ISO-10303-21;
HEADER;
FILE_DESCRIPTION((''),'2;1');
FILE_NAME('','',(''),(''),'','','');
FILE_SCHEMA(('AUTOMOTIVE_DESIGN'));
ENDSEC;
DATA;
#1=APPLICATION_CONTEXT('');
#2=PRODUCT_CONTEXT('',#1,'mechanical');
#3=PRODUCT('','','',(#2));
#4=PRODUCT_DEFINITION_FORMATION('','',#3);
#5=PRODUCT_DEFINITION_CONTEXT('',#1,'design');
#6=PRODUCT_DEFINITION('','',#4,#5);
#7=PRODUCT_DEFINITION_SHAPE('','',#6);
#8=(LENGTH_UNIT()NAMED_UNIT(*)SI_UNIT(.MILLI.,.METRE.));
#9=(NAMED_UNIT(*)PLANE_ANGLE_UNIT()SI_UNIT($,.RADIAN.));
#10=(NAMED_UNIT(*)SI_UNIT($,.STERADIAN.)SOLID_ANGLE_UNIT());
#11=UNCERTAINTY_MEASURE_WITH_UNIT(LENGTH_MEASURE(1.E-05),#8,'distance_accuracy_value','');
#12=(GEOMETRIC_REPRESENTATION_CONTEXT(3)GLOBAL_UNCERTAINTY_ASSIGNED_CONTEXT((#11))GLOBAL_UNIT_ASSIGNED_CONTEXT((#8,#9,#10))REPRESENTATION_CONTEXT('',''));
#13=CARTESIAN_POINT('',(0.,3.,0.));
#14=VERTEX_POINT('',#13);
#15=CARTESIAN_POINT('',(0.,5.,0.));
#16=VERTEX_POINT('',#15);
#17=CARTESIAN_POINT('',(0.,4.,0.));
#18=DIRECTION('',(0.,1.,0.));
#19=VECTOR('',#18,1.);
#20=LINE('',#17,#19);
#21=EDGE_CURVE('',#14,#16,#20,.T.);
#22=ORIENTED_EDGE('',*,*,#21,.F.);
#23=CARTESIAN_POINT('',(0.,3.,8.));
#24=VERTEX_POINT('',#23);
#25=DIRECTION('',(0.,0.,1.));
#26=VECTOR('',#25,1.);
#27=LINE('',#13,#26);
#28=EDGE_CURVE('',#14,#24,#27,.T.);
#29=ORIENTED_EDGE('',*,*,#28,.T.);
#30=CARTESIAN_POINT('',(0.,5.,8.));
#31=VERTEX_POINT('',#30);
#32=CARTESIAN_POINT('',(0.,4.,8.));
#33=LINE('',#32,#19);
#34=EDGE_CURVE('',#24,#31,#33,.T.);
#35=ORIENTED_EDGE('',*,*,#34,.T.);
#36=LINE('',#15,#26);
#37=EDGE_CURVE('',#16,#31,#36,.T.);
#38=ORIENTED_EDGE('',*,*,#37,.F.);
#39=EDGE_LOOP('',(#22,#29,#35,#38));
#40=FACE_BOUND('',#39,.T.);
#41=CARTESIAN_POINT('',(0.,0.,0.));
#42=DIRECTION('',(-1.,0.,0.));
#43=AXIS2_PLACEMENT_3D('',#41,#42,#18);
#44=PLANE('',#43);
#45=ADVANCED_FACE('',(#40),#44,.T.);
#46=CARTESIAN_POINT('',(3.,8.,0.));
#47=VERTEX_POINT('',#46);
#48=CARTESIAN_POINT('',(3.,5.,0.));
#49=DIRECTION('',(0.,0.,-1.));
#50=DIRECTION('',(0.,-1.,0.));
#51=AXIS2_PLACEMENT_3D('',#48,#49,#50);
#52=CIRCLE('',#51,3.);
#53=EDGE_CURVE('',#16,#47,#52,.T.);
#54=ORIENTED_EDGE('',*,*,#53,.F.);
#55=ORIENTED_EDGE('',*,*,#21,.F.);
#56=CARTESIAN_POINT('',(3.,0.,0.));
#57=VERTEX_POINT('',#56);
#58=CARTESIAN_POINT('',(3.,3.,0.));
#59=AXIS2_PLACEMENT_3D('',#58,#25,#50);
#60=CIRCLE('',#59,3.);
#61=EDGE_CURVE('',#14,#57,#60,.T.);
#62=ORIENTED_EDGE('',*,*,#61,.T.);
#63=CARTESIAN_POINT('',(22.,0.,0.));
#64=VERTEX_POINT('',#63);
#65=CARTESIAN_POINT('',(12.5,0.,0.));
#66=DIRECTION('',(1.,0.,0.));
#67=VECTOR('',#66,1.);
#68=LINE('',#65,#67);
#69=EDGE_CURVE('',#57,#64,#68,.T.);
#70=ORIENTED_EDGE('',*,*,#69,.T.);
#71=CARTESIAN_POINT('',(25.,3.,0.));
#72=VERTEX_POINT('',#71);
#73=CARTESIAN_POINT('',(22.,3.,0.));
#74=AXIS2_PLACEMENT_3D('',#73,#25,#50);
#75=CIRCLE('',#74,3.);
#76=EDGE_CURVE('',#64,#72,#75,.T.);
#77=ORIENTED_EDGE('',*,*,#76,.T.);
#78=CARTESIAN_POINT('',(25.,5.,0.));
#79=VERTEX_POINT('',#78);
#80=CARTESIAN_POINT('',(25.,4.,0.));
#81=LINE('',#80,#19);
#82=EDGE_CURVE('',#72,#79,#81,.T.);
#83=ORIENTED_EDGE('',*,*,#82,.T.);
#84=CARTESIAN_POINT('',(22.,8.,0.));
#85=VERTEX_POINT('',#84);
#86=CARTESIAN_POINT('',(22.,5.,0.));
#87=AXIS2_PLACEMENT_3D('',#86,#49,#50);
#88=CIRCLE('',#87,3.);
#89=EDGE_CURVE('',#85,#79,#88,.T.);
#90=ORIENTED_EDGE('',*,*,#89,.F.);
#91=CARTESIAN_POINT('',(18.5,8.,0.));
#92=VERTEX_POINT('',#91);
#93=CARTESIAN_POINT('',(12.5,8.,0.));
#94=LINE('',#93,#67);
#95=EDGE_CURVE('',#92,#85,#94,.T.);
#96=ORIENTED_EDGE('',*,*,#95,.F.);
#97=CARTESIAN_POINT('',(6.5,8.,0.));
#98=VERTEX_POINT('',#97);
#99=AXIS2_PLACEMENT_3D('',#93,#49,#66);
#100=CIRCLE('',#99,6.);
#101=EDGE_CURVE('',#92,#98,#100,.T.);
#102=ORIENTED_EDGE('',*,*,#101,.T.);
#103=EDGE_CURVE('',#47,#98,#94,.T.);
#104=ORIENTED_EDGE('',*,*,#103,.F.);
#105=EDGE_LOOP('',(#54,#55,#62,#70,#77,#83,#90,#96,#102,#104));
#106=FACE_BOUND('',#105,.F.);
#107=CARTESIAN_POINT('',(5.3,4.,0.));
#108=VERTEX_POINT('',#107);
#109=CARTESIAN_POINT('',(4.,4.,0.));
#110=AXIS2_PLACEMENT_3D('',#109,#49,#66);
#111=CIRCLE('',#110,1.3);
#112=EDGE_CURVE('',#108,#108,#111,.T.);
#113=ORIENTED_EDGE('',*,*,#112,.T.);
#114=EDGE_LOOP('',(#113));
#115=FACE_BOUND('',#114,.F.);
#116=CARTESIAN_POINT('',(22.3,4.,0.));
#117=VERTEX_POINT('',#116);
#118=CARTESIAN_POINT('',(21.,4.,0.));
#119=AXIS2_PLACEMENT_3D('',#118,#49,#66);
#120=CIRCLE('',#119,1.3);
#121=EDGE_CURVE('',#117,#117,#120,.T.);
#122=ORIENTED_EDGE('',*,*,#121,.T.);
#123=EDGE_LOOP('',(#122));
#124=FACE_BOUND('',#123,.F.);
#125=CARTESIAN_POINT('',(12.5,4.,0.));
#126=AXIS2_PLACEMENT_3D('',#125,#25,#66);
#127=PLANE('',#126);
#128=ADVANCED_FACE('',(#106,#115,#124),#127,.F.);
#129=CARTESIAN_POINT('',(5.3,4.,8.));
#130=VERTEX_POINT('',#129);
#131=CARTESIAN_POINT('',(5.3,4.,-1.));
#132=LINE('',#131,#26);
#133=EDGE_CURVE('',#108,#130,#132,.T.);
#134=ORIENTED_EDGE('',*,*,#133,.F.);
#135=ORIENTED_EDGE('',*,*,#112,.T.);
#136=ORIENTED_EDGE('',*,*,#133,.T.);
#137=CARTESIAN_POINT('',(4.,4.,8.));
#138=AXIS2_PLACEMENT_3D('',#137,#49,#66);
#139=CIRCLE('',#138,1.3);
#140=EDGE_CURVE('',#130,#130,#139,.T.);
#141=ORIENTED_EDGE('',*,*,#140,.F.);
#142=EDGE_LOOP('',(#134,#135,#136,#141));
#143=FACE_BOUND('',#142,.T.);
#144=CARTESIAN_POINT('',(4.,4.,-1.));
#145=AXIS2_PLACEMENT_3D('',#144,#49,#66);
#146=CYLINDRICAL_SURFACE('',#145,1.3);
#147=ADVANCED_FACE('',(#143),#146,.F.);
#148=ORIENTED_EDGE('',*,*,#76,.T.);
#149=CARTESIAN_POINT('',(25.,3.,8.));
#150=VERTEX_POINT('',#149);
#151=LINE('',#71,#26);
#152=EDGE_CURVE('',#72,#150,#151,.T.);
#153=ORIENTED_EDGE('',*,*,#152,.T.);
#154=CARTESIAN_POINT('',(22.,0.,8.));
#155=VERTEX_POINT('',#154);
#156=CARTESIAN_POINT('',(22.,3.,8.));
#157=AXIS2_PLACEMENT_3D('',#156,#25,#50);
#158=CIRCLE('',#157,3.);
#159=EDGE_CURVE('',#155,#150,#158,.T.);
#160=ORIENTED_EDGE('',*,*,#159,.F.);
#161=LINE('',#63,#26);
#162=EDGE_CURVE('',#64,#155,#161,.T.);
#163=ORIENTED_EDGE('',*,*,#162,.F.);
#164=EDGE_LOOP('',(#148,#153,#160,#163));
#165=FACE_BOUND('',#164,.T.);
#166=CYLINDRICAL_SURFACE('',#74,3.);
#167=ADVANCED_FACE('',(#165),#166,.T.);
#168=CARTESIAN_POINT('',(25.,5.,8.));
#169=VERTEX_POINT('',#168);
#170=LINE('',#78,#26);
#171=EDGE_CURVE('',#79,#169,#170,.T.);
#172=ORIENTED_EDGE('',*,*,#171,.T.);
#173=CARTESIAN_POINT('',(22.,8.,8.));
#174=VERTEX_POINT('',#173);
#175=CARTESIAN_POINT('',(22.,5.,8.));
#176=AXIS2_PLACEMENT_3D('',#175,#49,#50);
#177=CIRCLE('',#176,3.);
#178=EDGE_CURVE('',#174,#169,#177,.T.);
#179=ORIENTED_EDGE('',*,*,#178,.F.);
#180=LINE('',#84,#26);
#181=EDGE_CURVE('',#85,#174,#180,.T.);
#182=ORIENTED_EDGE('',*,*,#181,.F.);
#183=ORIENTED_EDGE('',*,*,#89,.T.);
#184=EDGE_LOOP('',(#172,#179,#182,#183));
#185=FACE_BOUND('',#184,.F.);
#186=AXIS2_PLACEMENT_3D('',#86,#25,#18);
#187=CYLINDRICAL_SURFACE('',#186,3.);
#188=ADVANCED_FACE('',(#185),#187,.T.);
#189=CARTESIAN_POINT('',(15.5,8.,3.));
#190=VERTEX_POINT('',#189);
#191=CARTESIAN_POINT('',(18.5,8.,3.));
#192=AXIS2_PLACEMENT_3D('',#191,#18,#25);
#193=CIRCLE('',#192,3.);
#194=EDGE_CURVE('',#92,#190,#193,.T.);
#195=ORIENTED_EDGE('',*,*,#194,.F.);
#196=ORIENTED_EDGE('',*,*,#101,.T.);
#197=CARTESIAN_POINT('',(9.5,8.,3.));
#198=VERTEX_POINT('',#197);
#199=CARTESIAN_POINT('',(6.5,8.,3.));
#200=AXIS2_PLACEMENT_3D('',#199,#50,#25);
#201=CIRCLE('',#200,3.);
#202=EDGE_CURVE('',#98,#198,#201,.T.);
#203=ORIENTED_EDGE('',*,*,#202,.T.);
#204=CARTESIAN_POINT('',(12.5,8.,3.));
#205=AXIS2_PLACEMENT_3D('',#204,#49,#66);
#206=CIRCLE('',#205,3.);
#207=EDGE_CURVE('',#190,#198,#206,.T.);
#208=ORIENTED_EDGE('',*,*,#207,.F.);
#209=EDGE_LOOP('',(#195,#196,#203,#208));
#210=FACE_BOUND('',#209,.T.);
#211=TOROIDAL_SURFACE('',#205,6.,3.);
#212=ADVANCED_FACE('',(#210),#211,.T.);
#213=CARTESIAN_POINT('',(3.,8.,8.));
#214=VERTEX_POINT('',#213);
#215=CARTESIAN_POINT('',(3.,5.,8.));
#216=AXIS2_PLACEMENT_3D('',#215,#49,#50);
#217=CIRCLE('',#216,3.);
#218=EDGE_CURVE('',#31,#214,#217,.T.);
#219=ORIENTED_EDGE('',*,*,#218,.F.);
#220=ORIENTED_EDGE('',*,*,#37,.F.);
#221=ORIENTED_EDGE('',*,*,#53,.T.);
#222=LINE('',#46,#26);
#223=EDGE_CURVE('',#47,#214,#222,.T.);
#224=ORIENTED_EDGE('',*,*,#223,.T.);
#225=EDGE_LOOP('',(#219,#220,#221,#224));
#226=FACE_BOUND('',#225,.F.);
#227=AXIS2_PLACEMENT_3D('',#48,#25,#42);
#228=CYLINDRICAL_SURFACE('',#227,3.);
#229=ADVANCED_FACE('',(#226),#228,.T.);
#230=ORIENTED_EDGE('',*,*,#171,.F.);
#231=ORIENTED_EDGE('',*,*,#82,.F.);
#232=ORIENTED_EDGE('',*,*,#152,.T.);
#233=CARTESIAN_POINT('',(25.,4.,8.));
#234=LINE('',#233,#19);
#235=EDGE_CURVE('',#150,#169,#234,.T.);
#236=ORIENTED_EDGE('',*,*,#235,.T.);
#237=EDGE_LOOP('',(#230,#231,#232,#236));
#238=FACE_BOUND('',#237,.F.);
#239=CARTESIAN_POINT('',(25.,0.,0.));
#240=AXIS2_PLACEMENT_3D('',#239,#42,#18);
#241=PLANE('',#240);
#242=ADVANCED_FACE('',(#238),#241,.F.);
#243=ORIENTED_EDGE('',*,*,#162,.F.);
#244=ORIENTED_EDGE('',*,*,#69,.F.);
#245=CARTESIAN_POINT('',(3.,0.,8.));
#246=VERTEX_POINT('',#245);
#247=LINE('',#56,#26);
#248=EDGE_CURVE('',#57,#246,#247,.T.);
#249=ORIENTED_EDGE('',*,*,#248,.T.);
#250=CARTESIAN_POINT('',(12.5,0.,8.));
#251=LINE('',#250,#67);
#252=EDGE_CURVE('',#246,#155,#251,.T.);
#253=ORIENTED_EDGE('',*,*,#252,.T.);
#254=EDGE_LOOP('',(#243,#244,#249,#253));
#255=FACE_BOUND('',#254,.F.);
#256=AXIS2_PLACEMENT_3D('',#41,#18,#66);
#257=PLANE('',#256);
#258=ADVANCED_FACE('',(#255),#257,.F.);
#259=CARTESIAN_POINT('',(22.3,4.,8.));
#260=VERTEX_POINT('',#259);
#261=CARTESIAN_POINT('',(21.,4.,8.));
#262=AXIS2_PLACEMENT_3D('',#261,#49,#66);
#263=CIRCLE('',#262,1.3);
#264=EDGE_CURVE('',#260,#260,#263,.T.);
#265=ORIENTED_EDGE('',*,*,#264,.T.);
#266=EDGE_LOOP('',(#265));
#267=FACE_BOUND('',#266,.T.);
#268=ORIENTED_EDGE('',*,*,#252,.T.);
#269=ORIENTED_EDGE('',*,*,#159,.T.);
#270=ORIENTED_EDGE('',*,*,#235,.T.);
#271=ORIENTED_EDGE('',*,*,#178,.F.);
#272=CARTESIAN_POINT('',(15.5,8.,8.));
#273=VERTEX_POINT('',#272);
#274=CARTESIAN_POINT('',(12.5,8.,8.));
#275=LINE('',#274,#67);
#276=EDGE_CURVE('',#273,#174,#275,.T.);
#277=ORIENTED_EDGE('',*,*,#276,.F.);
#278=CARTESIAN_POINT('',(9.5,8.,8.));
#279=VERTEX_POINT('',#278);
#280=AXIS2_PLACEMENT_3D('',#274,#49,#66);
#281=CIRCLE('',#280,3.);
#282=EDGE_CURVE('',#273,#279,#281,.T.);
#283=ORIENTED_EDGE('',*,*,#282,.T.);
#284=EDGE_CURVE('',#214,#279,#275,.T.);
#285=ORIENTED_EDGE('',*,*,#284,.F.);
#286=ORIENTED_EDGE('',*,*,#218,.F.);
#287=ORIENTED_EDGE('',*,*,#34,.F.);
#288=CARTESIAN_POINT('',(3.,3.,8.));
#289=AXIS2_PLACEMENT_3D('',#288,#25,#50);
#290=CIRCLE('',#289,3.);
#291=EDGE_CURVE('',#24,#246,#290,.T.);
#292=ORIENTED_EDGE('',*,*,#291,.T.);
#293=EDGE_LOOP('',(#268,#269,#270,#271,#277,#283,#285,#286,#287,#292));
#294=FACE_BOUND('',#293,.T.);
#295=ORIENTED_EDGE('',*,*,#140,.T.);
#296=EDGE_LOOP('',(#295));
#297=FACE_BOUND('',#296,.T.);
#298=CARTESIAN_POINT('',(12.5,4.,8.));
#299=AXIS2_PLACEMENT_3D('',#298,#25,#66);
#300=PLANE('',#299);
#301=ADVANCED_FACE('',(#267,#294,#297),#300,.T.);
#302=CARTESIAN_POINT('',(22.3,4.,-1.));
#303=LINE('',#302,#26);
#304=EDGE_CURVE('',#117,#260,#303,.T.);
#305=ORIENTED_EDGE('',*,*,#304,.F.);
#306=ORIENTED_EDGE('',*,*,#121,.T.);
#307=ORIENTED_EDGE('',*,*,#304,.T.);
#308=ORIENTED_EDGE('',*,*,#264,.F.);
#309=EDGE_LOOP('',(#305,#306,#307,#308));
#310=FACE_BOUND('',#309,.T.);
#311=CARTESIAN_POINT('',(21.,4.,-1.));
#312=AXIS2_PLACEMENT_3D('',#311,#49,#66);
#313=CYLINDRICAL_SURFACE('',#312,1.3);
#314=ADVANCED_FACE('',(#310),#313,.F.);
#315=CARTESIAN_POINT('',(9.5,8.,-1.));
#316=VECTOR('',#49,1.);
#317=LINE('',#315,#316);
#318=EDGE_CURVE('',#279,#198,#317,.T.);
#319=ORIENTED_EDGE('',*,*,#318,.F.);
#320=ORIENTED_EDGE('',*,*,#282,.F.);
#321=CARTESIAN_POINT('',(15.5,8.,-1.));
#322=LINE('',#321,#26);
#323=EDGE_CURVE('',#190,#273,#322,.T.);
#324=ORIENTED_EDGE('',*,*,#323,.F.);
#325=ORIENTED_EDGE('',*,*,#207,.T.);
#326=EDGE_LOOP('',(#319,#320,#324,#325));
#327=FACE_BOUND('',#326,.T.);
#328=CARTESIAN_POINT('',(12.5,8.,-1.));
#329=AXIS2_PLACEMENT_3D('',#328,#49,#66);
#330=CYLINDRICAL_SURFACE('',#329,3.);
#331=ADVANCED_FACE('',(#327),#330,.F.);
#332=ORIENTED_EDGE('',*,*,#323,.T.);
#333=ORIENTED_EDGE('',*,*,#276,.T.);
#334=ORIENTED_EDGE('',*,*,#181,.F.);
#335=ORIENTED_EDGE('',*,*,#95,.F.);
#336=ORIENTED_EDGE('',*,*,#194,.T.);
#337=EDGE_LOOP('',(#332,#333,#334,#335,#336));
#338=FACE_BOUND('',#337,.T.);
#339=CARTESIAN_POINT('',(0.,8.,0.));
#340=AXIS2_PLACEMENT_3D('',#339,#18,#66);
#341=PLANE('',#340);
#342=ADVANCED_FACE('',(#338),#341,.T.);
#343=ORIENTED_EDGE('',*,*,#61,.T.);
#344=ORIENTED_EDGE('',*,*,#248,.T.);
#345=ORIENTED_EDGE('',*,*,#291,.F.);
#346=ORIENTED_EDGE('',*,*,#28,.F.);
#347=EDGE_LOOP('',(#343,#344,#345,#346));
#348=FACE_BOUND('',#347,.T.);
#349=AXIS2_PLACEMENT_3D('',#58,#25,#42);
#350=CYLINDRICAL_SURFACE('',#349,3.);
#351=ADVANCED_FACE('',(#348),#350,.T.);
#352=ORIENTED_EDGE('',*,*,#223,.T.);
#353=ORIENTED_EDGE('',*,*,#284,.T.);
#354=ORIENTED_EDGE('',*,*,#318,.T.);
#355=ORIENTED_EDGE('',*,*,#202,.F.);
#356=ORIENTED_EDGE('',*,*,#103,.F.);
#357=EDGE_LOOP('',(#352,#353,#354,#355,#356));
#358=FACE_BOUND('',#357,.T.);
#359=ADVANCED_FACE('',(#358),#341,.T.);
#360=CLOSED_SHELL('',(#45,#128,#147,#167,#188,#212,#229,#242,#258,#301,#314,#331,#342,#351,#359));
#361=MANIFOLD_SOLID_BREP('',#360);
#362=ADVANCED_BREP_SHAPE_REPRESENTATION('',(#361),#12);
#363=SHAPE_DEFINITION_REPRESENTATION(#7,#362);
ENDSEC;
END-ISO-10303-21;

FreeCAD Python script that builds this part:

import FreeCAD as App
import Part
import Sketcher

V = App.Vector


def edges_at(feature, points):
    """Names of the edges that pass closest to the given points."""
    edges = feature.Shape.Edges
    near = lambda p: min(range(len(edges)), key=lambda i: edges[i].distToShape(Part.Vertex(*p))[0])
    return sorted({f"Edge{near(p) + 1}" for p in points})

doc = App.newDocument("Part")
body = doc.addObject("PartDesign::Body", "Body")

# Sketch on XY plane
sketch1 = doc.addObject("Sketcher::SketchObject", "Sketch")
body.addObject(sketch1)
sketch1.AttachmentSupport = (doc.XY_Plane, [""])
sketch1.MapMode = "FlatFace"
sketch1.AttachmentOffset = App.Placement(V(0, 0, -1), App.Rotation())
sketch1.addGeometry(Part.Circle(V(12.5, 8, 0), V(0, 0, 1), 3), False)
sketch1.addConstraint([
    Sketcher.Constraint("Diameter", 0, 6.0),
    Sketcher.Constraint("DistanceY", -1, 1, 0, 3, 8.0),
    Sketcher.Constraint("DistanceX", -1, 1, 0, 3, 12.5),
])
pad1 = doc.addObject("PartDesign::Pad", "Pad")
body.addObject(pad1)
pad1.Profile = sketch1
pad1.Length = 10
body2 = doc.addObject("PartDesign::Body", "Body001")

# Sketch on XY plane
sketch2 = doc.addObject("Sketcher::SketchObject", "Sketch001")
body2.addObject(sketch2)
sketch2.AttachmentSupport = (doc.getObject("XY_Plane001"), [""])
sketch2.MapMode = "FlatFace"
sketch2.AttachmentOffset = App.Placement(V(0, 0, -1), App.Rotation())
sketch2.addGeometry(Part.Circle(V(21, 4, 0), V(0, 0, 1), 1.3), False)
sketch2.addConstraint([
    Sketcher.Constraint("Diameter", 0, 2.6),
    Sketcher.Constraint("DistanceX", -1, 1, 0, 3, 21.0),
    Sketcher.Constraint("DistanceY", -1, 1, 0, 3, 4.0),
])
pad2 = doc.addObject("PartDesign::Pad", "Pad001")
body2.addObject(pad2)
pad2.Profile = sketch2
pad2.Length = 10
body3 = doc.addObject("PartDesign::Body", "Body002")
body3.AllowCompound = True

# Sketch on XY plane
sketch3 = doc.addObject("Sketcher::SketchObject", "Sketch002")
body3.addObject(sketch3)
sketch3.AttachmentSupport = (doc.getObject("XY_Plane002"), [""])
sketch3.MapMode = "FlatFace"
sketch3.AttachmentOffset = App.Placement(V(0, 0, -1), App.Rotation())
sketch3.addGeometry(Part.Circle(V(4, 4, 0), V(0, 0, 1), 1.3), False)
sketch3.addConstraint([
    Sketcher.Constraint("Diameter", 0, 2.6),
    Sketcher.Constraint("DistanceX", -1, 1, 0, 3, 4.0),
    Sketcher.Constraint("DistanceY", -1, 1, 0, 3, 4.0),
])
pad3 = doc.addObject("PartDesign::Pad", "Pad002")
body3.addObject(pad3)
pad3.Profile = sketch3
pad3.Length = 10
doc.recompute()

boolean = doc.addObject("PartDesign::Boolean", "Boolean")
body3.addObject(boolean)
boolean.Type = "Fuse"
boolean.addObjects([body2])
body4 = doc.addObject("PartDesign::Body", "Body003")

# Sketch on XY plane
sketch4 = doc.addObject("Sketcher::SketchObject", "Sketch003")
body4.addObject(sketch4)
sketch4.AttachmentSupport = (doc.getObject("XY_Plane003"), [""])
sketch4.MapMode = "FlatFace"
sketch4.addGeometry([
    Part.LineSegment(V(0, 8, 0), V(0, 0, 0)),
    Part.LineSegment(V(0, 0, 0), V(25, 0, 0)),
    Part.LineSegment(V(25, 0, 0), V(25, 8, 0)),
    Part.LineSegment(V(25, 8, 0), V(0, 8, 0)),
], False)
sketch4.addConstraint([
    Sketcher.Constraint("Coincident", 0, 2, 1, 1),
    Sketcher.Constraint("Coincident", 1, 2, 2, 1),
    Sketcher.Constraint("Coincident", 2, 2, 3, 1),
    Sketcher.Constraint("Coincident", 3, 2, 0, 1),
    Sketcher.Constraint("Vertical", 0),
    Sketcher.Constraint("Horizontal", 1),
    Sketcher.Constraint("Vertical", 2),
    Sketcher.Constraint("Horizontal", 3),
    Sketcher.Constraint("Coincident", 0, 2, -1, 1),
    Sketcher.Constraint("DistanceX", 1, 1, 1, 2, 25.0),
    Sketcher.Constraint("DistanceY", 0, 2, 0, 1, 8.0),
])
pad4 = doc.addObject("PartDesign::Pad", "Pad003")
body4.addObject(pad4)
pad4.Profile = sketch4
pad4.Length = 8
doc.recompute()

boolean2 = doc.addObject("PartDesign::Boolean", "Boolean001")
body4.addObject(boolean2)
boolean2.Type = "Cut"
boolean2.addObjects([body3])
doc.recompute()

fillet = doc.addObject("PartDesign::Fillet", "Fillet")
body4.addObject(fillet)
fillet.Base = (boolean2, edges_at(boolean2, [
    (0, 0, 4),
    (0, 8, 4),
    (25, 0, 4),
    (25, 8, 4),
]))
fillet.Radius = 3
doc.recompute()

boolean3 = doc.addObject("PartDesign::Boolean", "Boolean002")
body4.addObject(boolean3)
boolean3.Type = "Cut"
boolean3.addObjects([body])
doc.recompute()

fillet2 = doc.addObject("PartDesign::Fillet", "Fillet001")
body4.addObject(fillet2)
fillet2.Base = (boolean3, edges_at(boolean3, [(12.5, 5, 0)]))
fillet2.Radius = 3

doc.recompute()
